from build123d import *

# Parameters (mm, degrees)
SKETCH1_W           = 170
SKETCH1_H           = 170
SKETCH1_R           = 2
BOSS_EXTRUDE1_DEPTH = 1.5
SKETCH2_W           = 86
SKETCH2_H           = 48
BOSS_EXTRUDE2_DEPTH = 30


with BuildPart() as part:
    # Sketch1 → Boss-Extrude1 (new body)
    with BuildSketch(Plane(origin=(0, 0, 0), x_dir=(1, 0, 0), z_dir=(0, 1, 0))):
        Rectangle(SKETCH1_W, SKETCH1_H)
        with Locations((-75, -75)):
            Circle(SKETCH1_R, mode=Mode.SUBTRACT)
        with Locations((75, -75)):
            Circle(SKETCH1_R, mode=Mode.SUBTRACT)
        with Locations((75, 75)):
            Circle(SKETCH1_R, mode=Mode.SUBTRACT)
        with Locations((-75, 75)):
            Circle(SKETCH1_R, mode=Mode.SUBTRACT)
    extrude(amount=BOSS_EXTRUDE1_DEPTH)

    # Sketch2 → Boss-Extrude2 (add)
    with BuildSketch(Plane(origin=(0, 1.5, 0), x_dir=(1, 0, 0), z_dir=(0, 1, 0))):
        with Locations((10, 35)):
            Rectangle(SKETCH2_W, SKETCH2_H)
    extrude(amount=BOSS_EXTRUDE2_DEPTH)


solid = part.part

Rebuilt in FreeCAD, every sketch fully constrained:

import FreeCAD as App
import Part
import Sketcher
from FreeCAD import Vector
Q = App.Units.Quantity


def add_polygon(sketch, points):
    """Adds a closed chain of lines whose ends are joined by coincident constraints."""
    first, n = sketch.GeometryCount, len(points)
    for a, b in zip(points, points[1:] + points[:1]):
        sketch.addGeometry(Part.LineSegment(App.Vector(*a, 0), App.Vector(*b, 0)), False)
    for i in range(n):
        sketch.addConstraint(Sketcher.Constraint("Coincident", first + i, 2, first + (i + 1) % n, 1))

doc = App.newDocument("Part")
body = doc.addObject("PartDesign::Body", "Body")

# Sketch on XZ plane
sketch1 = body.newObject("Sketcher::SketchObject", "Sketch")
sketch1.AttachmentSupport = (doc.getObject("XZ_Plane"), [""])
sketch1.MapMode = "FlatFace"
add_polygon(sketch1, [(-85, -85), (-85, 85), (85, 85), (85, -85)])  # lines 0-3
sketch1.addGeometry(Part.Circle(Vector(-75, 75, 0), Vector(0, 0, 1), 2), False)  # 4
sketch1.addGeometry(Part.Circle(Vector(75, 75, 0), Vector(0, 0, 1), 2), False)  # 5
sketch1.addGeometry(Part.Circle(Vector(-75, -75, 0), Vector(0, 0, 1), 2), False)  # 6
sketch1.addGeometry(Part.Circle(Vector(75, -75, 0), Vector(0, 0, 1), 2), False)  # 7
sketch1.addConstraint(Sketcher.Constraint("Vertical", 0))
sketch1.addConstraint(Sketcher.Constraint("Horizontal", 1))
sketch1.addConstraint(Sketcher.Constraint("Vertical", 2))
sketch1.addConstraint(Sketcher.Constraint("Horizontal", 3))
sketch1.addConstraint(Sketcher.Constraint("Equal", 4, 5))
sketch1.addConstraint(Sketcher.Constraint("Equal", 5, 6))
sketch1.addConstraint(Sketcher.Constraint("Equal", 6, 7))
sketch1.addConstraint(Sketcher.Constraint("Symmetric", 5, 3, 6, 3, -1, 1))
sketch1.addConstraint(Sketcher.Constraint("Symmetric", 4, 3, 7, 3, -1, 1))
sketch1.addConstraint(Sketcher.Constraint("Symmetric", 0, 2, 2, 2, -1, 1))
sketch1.addConstraint(Sketcher.Constraint("Symmetric", 4, 3, 5, 3, -2))
sketch1.addConstraint(Sketcher.Constraint("Equal", 3, 0))
sketch1.addConstraint(Sketcher.Constraint("Diameter", 4, Q("4 mm")))
sketch1.addConstraint(Sketcher.Constraint("DistanceX", 1, 1, 1, 2, Q("170 mm")))
sketch1.addConstraint(Sketcher.Constraint("DistanceX", 4, 3, -1, 1, Q("75 mm")))
sketch1.addConstraint(Sketcher.Constraint("DistanceY", -1, 1, 4, 3, Q("75 mm")))
pad1 = body.newObject("PartDesign::Pad", "Pad")
pad1.Profile = sketch1
pad1.Length = 1.5
pad1.Reversed = True

# Sketch on XZ plane
sketch2 = body.newObject("Sketcher::SketchObject", "Sketch001")
sketch2.AttachmentSupport = (doc.getObject("XZ_Plane"), [""])
sketch2.MapMode = "FlatFace"
sketch2.AttachmentOffset = App.Placement(Vector(0, 0, -1.5), App.Rotation())
add_polygon(sketch2, [(-33, -59), (-33, -11), (53, -11), (53, -59)])  # lines 0-3
sketch2.addConstraint(Sketcher.Constraint("Vertical", 0))
sketch2.addConstraint(Sketcher.Constraint("Horizontal", 1))
sketch2.addConstraint(Sketcher.Constraint("Vertical", 2))
sketch2.addConstraint(Sketcher.Constraint("Horizontal", 3))
sketch2.addConstraint(Sketcher.Constraint("DistanceX", 1, 1, 1, 2, Q("86 mm")))
sketch2.addConstraint(Sketcher.Constraint("DistanceY", 0, 1, 0, 2, Q("48 mm")))
sketch2.addConstraint(Sketcher.Constraint("DistanceX", 0, 2, -1, 1, Q("33 mm")))
sketch2.addConstraint(Sketcher.Constraint("DistanceY", 0, 2, -1, 1, Q("11 mm")))
pad2 = body.newObject("PartDesign::Pad", "Pad001")
pad2.Profile = sketch2
pad2.Length = 30
pad2.Reversed = True

doc.recompute()
